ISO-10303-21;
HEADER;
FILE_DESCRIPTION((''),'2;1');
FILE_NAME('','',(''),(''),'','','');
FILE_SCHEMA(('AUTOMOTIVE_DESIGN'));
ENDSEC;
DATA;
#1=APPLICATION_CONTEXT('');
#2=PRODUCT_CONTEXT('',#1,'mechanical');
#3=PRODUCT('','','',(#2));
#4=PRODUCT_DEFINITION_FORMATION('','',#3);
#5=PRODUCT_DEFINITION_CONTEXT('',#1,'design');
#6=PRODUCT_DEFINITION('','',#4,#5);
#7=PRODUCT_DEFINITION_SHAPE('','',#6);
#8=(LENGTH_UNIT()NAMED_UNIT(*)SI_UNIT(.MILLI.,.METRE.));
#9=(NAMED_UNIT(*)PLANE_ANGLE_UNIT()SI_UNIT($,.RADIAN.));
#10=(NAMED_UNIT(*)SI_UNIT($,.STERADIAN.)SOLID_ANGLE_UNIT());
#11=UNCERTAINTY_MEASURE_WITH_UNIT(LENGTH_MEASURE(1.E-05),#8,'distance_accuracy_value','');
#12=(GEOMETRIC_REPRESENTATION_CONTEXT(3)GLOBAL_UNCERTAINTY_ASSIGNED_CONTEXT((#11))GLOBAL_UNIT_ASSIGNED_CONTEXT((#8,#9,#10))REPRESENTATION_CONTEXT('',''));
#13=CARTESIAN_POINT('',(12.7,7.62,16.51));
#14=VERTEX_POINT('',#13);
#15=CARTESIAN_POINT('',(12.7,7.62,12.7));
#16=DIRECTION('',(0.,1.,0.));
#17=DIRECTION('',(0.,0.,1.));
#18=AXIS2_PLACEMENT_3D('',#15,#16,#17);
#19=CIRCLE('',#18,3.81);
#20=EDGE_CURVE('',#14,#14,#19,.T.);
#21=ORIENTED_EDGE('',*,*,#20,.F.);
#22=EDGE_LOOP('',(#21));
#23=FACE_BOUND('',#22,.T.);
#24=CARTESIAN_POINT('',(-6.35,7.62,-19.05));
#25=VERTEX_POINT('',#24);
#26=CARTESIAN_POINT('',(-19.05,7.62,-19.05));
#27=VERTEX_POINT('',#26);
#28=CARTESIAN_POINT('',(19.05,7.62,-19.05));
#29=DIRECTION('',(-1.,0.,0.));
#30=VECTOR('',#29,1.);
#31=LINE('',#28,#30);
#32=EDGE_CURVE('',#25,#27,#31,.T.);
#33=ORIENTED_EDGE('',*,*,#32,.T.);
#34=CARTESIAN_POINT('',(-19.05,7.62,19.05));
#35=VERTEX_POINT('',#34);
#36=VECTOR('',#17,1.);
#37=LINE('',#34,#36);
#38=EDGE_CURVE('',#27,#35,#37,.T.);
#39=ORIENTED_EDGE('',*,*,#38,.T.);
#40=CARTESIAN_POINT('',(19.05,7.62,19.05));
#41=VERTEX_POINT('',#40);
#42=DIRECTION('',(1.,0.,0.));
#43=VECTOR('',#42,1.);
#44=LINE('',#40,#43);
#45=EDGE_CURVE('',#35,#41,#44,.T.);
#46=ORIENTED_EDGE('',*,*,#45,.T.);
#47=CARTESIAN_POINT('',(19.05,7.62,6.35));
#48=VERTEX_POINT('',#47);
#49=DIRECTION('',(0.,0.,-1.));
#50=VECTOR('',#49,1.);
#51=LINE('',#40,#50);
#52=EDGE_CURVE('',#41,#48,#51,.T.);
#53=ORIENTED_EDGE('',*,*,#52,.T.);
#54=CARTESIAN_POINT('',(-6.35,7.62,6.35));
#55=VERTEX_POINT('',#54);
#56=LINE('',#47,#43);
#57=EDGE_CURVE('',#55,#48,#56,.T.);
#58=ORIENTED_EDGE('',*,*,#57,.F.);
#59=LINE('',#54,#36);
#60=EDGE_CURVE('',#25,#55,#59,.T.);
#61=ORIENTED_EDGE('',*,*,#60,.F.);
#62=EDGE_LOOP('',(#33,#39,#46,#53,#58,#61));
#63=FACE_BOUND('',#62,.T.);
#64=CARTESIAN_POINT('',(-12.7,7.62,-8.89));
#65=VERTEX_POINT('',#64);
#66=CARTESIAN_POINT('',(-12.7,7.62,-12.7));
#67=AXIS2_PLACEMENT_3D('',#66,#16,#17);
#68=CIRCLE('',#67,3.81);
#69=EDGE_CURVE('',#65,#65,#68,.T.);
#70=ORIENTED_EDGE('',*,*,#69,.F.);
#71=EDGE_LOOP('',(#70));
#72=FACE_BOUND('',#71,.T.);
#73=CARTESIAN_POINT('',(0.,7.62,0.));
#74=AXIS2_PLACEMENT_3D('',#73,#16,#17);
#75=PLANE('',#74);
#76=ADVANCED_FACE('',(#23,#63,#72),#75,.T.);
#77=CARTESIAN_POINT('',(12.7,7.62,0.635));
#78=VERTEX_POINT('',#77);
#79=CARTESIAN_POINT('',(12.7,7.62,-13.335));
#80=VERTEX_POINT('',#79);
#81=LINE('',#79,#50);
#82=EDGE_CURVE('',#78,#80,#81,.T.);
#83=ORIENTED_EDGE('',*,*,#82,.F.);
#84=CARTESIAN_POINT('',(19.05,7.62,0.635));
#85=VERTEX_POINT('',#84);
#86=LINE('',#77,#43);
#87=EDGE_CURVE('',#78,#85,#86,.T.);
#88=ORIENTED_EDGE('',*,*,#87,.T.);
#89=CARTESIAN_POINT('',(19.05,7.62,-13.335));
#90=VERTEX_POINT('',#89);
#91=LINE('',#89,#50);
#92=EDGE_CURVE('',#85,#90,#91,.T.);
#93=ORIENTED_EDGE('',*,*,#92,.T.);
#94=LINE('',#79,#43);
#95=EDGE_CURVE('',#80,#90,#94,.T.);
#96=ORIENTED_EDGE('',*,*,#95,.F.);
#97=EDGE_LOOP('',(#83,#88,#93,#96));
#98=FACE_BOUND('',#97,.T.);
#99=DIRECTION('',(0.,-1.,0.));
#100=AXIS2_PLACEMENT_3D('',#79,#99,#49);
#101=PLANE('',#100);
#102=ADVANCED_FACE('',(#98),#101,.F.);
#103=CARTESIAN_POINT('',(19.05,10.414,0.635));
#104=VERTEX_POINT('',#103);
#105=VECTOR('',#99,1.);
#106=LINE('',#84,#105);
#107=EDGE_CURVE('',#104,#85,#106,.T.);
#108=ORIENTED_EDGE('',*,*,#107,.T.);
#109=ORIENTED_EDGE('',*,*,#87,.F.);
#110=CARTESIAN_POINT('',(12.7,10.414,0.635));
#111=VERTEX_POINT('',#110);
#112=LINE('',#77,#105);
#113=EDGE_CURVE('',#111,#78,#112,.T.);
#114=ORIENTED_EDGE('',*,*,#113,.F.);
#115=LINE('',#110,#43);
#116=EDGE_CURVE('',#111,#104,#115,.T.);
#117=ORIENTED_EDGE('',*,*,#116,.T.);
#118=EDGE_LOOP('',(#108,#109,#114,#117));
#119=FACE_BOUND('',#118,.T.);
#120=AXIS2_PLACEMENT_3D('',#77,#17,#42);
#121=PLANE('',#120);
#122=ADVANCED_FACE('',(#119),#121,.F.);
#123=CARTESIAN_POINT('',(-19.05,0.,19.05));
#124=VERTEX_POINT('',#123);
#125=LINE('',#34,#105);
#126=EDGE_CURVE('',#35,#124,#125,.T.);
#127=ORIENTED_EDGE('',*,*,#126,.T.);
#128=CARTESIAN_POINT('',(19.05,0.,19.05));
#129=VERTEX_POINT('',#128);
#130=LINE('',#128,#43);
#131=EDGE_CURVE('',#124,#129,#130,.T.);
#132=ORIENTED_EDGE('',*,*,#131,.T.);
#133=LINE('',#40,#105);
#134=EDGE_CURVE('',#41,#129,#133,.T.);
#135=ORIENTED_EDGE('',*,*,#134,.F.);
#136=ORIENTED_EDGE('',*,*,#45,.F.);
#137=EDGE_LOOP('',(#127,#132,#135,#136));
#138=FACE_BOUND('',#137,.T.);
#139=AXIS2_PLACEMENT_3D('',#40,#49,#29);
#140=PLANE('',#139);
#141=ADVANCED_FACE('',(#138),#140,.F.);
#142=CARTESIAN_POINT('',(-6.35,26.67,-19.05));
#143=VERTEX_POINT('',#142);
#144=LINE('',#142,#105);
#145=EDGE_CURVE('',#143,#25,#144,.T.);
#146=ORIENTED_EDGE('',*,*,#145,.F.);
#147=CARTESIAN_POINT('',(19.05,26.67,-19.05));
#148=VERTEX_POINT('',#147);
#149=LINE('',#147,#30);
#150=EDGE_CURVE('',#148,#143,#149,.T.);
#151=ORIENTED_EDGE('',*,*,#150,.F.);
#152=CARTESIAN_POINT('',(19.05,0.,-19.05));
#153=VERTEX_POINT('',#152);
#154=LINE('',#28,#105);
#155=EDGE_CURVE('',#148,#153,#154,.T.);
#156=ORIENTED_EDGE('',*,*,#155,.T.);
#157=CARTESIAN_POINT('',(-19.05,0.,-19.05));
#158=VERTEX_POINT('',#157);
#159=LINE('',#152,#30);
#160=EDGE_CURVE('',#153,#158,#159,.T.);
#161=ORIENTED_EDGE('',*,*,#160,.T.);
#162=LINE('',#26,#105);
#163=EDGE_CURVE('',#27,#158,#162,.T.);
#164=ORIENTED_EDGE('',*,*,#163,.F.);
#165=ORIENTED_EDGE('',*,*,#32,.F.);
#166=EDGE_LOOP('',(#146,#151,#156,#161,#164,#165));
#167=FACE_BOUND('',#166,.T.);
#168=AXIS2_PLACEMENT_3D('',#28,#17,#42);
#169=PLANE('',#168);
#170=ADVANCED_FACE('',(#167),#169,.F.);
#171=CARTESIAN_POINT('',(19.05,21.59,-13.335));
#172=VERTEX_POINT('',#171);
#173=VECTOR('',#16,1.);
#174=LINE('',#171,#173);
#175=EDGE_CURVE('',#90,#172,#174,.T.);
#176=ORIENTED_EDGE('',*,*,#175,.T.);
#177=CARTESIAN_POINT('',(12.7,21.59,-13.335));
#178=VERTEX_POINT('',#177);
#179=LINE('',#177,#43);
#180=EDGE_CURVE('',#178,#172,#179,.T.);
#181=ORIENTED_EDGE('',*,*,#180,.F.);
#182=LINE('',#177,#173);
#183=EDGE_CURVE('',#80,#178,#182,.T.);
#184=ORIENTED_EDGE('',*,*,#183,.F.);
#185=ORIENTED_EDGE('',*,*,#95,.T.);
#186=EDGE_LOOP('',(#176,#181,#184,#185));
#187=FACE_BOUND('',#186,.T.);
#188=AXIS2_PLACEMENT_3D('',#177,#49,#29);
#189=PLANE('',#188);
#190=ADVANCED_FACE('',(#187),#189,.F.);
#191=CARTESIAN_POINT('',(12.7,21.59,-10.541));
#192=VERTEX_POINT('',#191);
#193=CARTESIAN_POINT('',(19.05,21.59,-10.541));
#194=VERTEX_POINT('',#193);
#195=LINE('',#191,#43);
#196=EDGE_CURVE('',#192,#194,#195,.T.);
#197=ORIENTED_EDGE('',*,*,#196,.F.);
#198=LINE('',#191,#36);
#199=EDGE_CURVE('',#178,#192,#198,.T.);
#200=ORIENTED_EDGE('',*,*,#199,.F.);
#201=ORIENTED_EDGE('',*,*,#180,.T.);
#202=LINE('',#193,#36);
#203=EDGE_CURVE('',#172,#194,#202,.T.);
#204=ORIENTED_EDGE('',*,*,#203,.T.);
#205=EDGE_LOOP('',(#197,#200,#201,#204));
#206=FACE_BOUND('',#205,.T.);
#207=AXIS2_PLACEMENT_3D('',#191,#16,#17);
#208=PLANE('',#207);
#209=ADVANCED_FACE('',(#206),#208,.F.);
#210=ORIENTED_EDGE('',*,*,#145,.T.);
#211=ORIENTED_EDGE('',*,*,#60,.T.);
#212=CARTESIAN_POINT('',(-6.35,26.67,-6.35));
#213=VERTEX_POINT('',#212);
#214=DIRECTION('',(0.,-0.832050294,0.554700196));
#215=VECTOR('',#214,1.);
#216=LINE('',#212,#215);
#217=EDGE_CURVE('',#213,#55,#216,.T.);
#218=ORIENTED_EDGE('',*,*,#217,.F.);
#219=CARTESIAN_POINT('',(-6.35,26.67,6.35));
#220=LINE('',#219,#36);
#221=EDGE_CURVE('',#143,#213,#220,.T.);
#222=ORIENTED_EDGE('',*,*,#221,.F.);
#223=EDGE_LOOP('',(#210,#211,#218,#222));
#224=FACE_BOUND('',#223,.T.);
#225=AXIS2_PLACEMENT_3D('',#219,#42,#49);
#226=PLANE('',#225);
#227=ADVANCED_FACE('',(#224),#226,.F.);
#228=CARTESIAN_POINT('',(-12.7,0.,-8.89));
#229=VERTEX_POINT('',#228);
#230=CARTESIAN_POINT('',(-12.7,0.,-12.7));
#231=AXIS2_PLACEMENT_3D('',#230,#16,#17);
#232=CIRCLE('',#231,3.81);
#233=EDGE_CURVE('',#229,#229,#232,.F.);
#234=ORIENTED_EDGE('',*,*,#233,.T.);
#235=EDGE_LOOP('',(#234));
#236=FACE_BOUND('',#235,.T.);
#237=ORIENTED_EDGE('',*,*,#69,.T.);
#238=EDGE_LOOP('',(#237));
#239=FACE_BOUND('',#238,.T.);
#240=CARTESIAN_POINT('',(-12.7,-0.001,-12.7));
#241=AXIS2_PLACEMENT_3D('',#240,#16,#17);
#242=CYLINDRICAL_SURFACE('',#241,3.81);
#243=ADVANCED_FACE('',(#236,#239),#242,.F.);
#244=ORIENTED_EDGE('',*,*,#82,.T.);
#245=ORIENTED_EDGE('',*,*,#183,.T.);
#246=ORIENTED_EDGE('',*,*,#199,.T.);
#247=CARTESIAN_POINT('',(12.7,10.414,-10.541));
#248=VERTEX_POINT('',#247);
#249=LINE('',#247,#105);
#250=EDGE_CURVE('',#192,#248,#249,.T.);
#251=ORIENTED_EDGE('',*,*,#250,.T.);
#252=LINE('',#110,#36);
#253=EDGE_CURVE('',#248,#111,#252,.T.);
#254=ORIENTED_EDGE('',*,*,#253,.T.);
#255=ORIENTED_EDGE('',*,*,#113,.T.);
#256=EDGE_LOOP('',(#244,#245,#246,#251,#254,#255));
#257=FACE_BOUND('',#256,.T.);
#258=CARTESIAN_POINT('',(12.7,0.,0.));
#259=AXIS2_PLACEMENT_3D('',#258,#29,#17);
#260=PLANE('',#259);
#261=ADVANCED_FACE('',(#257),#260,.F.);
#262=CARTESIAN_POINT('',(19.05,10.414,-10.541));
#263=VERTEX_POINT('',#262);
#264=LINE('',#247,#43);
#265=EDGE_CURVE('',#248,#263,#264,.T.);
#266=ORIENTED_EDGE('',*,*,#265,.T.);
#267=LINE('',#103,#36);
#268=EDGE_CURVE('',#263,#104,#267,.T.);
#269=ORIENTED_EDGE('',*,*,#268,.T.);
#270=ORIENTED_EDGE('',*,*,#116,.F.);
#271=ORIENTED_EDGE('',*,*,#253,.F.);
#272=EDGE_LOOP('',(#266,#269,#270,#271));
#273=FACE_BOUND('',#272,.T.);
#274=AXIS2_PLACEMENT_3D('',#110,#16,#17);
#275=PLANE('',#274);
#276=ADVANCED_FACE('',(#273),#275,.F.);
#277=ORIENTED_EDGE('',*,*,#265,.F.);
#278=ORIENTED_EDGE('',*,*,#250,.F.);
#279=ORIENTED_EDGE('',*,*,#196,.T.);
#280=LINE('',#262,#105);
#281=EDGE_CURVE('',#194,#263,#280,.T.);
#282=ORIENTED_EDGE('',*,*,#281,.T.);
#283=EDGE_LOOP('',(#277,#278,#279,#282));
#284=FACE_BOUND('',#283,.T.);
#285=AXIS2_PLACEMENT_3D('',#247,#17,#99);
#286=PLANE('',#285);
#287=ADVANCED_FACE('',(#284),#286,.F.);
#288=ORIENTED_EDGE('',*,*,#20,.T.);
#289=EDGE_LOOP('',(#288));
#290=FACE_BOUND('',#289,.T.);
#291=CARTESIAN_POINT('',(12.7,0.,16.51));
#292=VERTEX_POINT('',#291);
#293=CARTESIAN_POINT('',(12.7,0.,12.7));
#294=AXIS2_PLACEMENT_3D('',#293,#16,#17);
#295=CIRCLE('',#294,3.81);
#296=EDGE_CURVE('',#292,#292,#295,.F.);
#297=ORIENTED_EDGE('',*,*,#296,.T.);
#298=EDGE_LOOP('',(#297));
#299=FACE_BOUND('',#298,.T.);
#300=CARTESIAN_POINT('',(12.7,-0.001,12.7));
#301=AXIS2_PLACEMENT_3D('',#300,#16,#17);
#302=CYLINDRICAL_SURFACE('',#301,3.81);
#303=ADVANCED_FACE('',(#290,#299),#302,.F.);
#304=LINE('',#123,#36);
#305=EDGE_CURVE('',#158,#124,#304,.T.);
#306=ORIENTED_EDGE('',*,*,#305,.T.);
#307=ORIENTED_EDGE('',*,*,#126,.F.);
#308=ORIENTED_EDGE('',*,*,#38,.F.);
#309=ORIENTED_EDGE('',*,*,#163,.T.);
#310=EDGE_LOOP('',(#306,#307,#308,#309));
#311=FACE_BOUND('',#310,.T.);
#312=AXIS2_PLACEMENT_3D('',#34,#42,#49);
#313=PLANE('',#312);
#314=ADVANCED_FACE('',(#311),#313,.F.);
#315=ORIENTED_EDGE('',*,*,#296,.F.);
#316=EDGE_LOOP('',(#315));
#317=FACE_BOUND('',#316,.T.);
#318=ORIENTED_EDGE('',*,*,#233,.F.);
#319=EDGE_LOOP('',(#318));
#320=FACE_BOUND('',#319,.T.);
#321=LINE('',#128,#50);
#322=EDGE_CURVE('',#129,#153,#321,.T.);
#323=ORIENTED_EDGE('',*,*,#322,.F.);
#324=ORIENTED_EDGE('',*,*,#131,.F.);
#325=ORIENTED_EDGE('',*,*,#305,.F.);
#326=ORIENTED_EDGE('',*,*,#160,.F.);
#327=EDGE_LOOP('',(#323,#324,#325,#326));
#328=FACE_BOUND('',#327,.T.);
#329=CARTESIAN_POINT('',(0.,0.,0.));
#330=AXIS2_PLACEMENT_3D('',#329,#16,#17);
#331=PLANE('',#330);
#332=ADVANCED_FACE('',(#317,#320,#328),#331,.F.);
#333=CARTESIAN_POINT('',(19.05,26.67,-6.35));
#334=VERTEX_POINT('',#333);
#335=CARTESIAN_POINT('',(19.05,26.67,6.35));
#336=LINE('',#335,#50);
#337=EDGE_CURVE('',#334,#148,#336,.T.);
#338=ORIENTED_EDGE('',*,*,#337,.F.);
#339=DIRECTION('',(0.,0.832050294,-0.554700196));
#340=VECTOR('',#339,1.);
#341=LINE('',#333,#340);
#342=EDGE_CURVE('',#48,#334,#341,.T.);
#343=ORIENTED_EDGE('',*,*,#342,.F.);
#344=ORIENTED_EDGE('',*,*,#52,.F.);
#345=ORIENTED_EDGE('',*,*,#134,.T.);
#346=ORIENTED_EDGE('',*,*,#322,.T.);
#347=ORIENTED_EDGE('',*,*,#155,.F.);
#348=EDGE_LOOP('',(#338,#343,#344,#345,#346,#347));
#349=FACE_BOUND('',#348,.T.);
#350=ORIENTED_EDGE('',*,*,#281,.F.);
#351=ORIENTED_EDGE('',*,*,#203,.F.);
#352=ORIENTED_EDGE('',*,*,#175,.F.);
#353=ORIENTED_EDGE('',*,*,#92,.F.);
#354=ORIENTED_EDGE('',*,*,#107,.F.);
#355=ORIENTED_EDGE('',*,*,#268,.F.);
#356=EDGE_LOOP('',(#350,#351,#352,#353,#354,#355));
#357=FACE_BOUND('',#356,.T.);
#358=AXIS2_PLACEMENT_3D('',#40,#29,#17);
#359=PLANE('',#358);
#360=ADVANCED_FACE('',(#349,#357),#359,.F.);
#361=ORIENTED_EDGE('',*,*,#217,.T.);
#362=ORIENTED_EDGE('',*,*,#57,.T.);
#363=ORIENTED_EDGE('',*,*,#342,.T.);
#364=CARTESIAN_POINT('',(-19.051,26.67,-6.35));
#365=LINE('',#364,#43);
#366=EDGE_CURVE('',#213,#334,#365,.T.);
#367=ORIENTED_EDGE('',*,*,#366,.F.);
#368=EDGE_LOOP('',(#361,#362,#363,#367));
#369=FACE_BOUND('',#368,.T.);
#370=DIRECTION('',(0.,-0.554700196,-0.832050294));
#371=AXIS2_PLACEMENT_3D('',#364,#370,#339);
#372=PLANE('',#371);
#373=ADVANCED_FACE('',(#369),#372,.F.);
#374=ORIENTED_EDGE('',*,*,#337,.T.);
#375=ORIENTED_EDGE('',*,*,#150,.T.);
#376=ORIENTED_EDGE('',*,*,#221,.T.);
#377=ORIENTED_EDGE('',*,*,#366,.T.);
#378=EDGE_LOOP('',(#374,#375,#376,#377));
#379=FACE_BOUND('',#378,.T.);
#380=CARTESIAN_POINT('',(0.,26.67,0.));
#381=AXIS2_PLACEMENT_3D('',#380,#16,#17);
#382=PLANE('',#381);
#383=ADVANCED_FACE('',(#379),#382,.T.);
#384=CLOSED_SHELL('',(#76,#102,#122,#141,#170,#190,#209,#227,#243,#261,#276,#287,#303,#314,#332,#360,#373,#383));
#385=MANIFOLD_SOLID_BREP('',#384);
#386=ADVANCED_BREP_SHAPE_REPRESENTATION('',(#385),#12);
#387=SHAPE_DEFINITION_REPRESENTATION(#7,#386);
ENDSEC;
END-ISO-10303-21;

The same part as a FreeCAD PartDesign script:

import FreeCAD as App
import Part
import Sketcher
Q = App.Units.Quantity


def add_polygon(sketch, points):
    """Adds a closed chain of lines whose ends are joined by coincident constraints."""
    first, n = sketch.GeometryCount, len(points)
    for a, b in zip(points, points[1:] + points[:1]):
        sketch.addGeometry(Part.LineSegment(App.Vector(*a, 0), App.Vector(*b, 0)), False)
    for i in range(n):
        sketch.addConstraint(Sketcher.Constraint("Coincident", first + i, 2, first + (i + 1) % n, 1))

doc = App.newDocument("Part")
body = doc.addObject("PartDesign::Body", "Body")

# Sketch on XZ plane
sketch1 = body.newObject("Sketcher::SketchObject", "Sketch")
sketch1.AttachmentSupport = (doc.getObject("XZ_Plane"), [""])
sketch1.MapMode = "FlatFace"
add_polygon(sketch1, [(-19.05, -19.05), (-19.05, 19.05), (19.05, 19.05), (19.05, -19.05)])  # lines 0-3
sketch1.addConstraint([
    Sketcher.Constraint("Vertical", 0),
    Sketcher.Constraint("Horizontal", 1),
    Sketcher.Constraint("Vertical", 2),
    Sketcher.Constraint("Horizontal", 3),
    Sketcher.Constraint("Symmetric", 0, 2, 2, 2, -1, 1),
    Sketcher.Constraint("Equal", 3, 0),
    Sketcher.Constraint("DistanceX", 1, 1, 1, 2, Q("1.5 in")),
])
pad1 = body.newObject("PartDesign::Pad", "Pad")
pad1.Profile = sketch1
pad1.Length = Q("0.3 in")
pad1.Reversed = True

# Sketch on XZ plane
sketch2 = body.newObject("Sketcher::SketchObject", "Sketch001")
sketch2.AttachmentSupport = (doc.getObject("XZ_Plane"), [""])
sketch2.MapMode = "FlatFace"
sketch2.AttachmentOffset = App.Placement(App.Vector(0, 0, -0.3 * 25.4), App.Rotation())
add_polygon(sketch2, [(-6.35, -19.05), (-6.35, 6.35), (19.05, 6.35), (19.05, -19.05)])  # lines 0-3
sketch2.addConstraint([
    Sketcher.Constraint("Vertical", 0),
    Sketcher.Constraint("Horizontal", 1),
    Sketcher.Constraint("Vertical", 2),
    Sketcher.Constraint("Horizontal", 3),
    Sketcher.Constraint("Equal", 3, 0),
    Sketcher.Constraint("DistanceX", 1, 1, 1, 2, Q("1 in")),
    Sketcher.Constraint("DistanceX", 0, 2, -1, 1, Q("0.25 in")),
    Sketcher.Constraint("DistanceY", -1, 1, 0, 2, Q("0.25 in")),
])
pad2 = body.newObject("PartDesign::Pad", "Pad001")
pad2.Profile = sketch2
pad2.Length = Q("0.75 in")
pad2.Reversed = True

# Sketch on XZ plane
sketch3 = body.newObject("Sketcher::SketchObject", "Sketch002")
sketch3.AttachmentSupport = (doc.getObject("XZ_Plane"), [""])
sketch3.MapMode = "FlatFace"
sketch3.AttachmentOffset = App.Placement(App.Vector(0, 0, -0.3 * 25.4), App.Rotation())
sketch3.addGeometry(Part.Circle(App.Vector(-12.7, -12.7, 0), App.Vector(0, 0, 1), 3.81), False)
sketch3.addConstraint([
    Sketcher.Constraint("Diameter", 0, Q("0.3 in")),
    Sketcher.Constraint("DistanceX", 0, 3, -1, 1, Q("0.5 in")),
    Sketcher.Constraint("DistanceY", 0, 3, -1, 1, Q("0.5 in")),
])
pocket1 = body.newObject("PartDesign::Pocket", "Pocket")
pocket1.Profile = sketch3
pocket1.Type = "UpToFirst"
pocket1.Reversed = True

# Sketch on XZ plane
sketch4 = body.newObject("Sketcher::SketchObject", "Sketch003")
sketch4.AttachmentSupport = (doc.getObject("XZ_Plane"), [""])
sketch4.MapMode = "FlatFace"
sketch4.AttachmentOffset = App.Placement(App.Vector(0, 0, -0.3 * 25.4), App.Rotation())
sketch4.addGeometry(Part.Circle(App.Vector(12.7, 12.7, 0), App.Vector(0, 0, 1), 3.81), False)
sketch4.addConstraint([
    Sketcher.Constraint("Diameter", 0, Q("0.3 in")),
    Sketcher.Constraint("DistanceX", -1, 1, 0, 3, Q("0.5 in")),
    Sketcher.Constraint("DistanceY", -1, 1, 0, 3, Q("0.5 in")),
])
pocket2 = body.newObject("PartDesign::Pocket", "Pocket001")
pocket2.Profile = sketch4
pocket2.Type = "UpToFirst"
pocket2.Reversed = True

# Sketch on YZ plane
sketch5 = body.newObject("Sketcher::SketchObject", "Sketch004")
sketch5.AttachmentSupport = (doc.getObject("YZ_Plane"), [""])
sketch5.MapMode = "FlatFace"
sketch5.AttachmentOffset = App.Placement(App.Vector(0, 0, 0.75 * 25.4), App.Rotation())
add_polygon(sketch5, [(21.59, -13.335), (21.59, -10.541), (10.414, -10.541), (10.414, 0.635), (7.62, 0.635), (7.62, -13.335)])  # lines 0-5
sketch5.addConstraint([
    Sketcher.Constraint("Vertical", 0),
    Sketcher.Constraint("Horizontal", 1),
    Sketcher.Constraint("Vertical", 2),
    Sketcher.Constraint("Horizontal", 3),
    Sketcher.Constraint("Vertical", 4),
    Sketcher.Constraint("Horizontal", 5),
    Sketcher.Constraint("Equal", 3, 0),
    Sketcher.Constraint("Equal", 1, 2),
    Sketcher.Constraint("DistanceX", 1, 2, 1, 1, Q("0.44 in")),
    Sketcher.Constraint("DistanceX", 3, 2, 3, 1, Q("0.11 in")),
    Sketcher.Constraint("DistanceX", -1, 1, 3, 2, Q("0.3 in")),
    Sketcher.Constraint("DistanceY", 0, 2, -1, 1, Q("0.415 in")),
])
pocket3 = body.newObject("PartDesign::Pocket", "Pocket002")
pocket3.Profile = sketch5
pocket3.Length = Q("0.25 in")

# Sketch on YZ plane
sketch6 = body.newObject("Sketcher::SketchObject", "Sketch005")
sketch6.AttachmentSupport = (doc.getObject("YZ_Plane"), [""])
sketch6.MapMode = "FlatFace"
sketch6.AttachmentOffset = App.Placement(App.Vector(0, 0, 0.75 * 25.4), App.Rotation())
add_polygon(sketch6, [(7.62, 6.35), (26.67, -6.35), (26.67, 6.35)])  # lines 0-2
sketch6.addConstraint([
    Sketcher.Constraint("Vertical", 1),
    Sketcher.Constraint("Horizontal", 2),
    Sketcher.Constraint("DistanceY", 1, 1, 1, 2, Q("0.5 in")),
    Sketcher.Constraint("DistanceX", 2, 2, 2, 1, Q("0.75 in")),
    Sketcher.Constraint("DistanceX", -1, 1, 2, 2, Q("0.3 in")),
    Sketcher.Constraint("DistanceY", 0, 2, -1, 1, Q("0.25 in")),
])
pocket4 = body.newObject("PartDesign::Pocket", "Pocket003")
pocket4.Profile = sketch6
pocket4.Type = "UpToFirst"

doc.recompute()
